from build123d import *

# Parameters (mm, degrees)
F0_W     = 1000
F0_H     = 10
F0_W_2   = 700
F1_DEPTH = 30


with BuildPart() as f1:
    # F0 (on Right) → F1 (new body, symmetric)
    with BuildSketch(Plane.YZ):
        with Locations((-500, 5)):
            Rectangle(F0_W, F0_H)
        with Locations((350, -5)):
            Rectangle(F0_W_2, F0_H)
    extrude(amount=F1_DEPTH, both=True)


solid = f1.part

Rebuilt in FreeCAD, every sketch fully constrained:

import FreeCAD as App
import Part
import Sketcher

V = App.Vector
Q = App.Units.Quantity

doc = App.newDocument("Part")
body = doc.addObject("PartDesign::Body", "Body")
body.AllowCompound = True

sketch1 = body.newObject("Sketcher::SketchObject", "Sketch")
sketch1.AttachmentSupport = (doc.getObject("YZ_Plane"), [""])
sketch1.MapMode = "FlatFace"
sketch1.addGeometry([
    Part.LineSegment(V(-1000, 10, 0), V(-1000, 0, 0)),
    Part.LineSegment(V(-1000, 0, 0), V(0, 0, 0)),
    Part.LineSegment(V(0, 0, 0), V(0, 10, 0)),
    Part.LineSegment(V(0, 10, 0), V(-1000, 10, 0)),
    Part.LineSegment(V(0, 0, 0), V(0, -10, 0)),
    Part.LineSegment(V(0, -10, 0), V(700, -10, 0)),
    Part.LineSegment(V(700, -10, 0), V(700, 0, 0)),
    Part.LineSegment(V(700, 0, 0), V(0, 0, 0)),
], False)
sketch1.addConstraint([
    Sketcher.Constraint("Coincident", 0, 2, 1, 1),
    Sketcher.Constraint("Coincident", 1, 2, 2, 1),
    Sketcher.Constraint("Coincident", 2, 2, 3, 1),
    Sketcher.Constraint("Coincident", 3, 2, 0, 1),
    Sketcher.Constraint("Coincident", 4, 2, 5, 1),
    Sketcher.Constraint("Coincident", 5, 2, 6, 1),
    Sketcher.Constraint("Coincident", 6, 2, 7, 1),
    Sketcher.Constraint("Coincident", 7, 2, 4, 1),
    Sketcher.Constraint("Vertical", 0),
    Sketcher.Constraint("Horizontal", 1),
    Sketcher.Constraint("Vertical", 2),
    Sketcher.Constraint("Horizontal", 3),
    Sketcher.Constraint("Vertical", 4),
    Sketcher.Constraint("Horizontal", 5),
    Sketcher.Constraint("Vertical", 6),
    Sketcher.Constraint("Horizontal", 7),
    Sketcher.Constraint("Coincident", 1, 2, -1, 1),
    Sketcher.Constraint("Coincident", 7, 2, -1, 1),
    Sketcher.Constraint("Equal", 2, 4),
    Sketcher.Constraint("DistanceX", 1, 1, 1, 2, Q("1000 mm")),
    Sketcher.Constraint("DistanceX", 5, 1, 5, 2, Q("700 mm")),
    Sketcher.Constraint("DistanceY", 0, 2, 0, 1, Q("10 mm")),
])
pad1 = body.newObject("PartDesign::Pad", "Pad")
pad1.Profile = sketch1
pad1.Length = 60
pad1.Midplane = True

doc.recompute()
